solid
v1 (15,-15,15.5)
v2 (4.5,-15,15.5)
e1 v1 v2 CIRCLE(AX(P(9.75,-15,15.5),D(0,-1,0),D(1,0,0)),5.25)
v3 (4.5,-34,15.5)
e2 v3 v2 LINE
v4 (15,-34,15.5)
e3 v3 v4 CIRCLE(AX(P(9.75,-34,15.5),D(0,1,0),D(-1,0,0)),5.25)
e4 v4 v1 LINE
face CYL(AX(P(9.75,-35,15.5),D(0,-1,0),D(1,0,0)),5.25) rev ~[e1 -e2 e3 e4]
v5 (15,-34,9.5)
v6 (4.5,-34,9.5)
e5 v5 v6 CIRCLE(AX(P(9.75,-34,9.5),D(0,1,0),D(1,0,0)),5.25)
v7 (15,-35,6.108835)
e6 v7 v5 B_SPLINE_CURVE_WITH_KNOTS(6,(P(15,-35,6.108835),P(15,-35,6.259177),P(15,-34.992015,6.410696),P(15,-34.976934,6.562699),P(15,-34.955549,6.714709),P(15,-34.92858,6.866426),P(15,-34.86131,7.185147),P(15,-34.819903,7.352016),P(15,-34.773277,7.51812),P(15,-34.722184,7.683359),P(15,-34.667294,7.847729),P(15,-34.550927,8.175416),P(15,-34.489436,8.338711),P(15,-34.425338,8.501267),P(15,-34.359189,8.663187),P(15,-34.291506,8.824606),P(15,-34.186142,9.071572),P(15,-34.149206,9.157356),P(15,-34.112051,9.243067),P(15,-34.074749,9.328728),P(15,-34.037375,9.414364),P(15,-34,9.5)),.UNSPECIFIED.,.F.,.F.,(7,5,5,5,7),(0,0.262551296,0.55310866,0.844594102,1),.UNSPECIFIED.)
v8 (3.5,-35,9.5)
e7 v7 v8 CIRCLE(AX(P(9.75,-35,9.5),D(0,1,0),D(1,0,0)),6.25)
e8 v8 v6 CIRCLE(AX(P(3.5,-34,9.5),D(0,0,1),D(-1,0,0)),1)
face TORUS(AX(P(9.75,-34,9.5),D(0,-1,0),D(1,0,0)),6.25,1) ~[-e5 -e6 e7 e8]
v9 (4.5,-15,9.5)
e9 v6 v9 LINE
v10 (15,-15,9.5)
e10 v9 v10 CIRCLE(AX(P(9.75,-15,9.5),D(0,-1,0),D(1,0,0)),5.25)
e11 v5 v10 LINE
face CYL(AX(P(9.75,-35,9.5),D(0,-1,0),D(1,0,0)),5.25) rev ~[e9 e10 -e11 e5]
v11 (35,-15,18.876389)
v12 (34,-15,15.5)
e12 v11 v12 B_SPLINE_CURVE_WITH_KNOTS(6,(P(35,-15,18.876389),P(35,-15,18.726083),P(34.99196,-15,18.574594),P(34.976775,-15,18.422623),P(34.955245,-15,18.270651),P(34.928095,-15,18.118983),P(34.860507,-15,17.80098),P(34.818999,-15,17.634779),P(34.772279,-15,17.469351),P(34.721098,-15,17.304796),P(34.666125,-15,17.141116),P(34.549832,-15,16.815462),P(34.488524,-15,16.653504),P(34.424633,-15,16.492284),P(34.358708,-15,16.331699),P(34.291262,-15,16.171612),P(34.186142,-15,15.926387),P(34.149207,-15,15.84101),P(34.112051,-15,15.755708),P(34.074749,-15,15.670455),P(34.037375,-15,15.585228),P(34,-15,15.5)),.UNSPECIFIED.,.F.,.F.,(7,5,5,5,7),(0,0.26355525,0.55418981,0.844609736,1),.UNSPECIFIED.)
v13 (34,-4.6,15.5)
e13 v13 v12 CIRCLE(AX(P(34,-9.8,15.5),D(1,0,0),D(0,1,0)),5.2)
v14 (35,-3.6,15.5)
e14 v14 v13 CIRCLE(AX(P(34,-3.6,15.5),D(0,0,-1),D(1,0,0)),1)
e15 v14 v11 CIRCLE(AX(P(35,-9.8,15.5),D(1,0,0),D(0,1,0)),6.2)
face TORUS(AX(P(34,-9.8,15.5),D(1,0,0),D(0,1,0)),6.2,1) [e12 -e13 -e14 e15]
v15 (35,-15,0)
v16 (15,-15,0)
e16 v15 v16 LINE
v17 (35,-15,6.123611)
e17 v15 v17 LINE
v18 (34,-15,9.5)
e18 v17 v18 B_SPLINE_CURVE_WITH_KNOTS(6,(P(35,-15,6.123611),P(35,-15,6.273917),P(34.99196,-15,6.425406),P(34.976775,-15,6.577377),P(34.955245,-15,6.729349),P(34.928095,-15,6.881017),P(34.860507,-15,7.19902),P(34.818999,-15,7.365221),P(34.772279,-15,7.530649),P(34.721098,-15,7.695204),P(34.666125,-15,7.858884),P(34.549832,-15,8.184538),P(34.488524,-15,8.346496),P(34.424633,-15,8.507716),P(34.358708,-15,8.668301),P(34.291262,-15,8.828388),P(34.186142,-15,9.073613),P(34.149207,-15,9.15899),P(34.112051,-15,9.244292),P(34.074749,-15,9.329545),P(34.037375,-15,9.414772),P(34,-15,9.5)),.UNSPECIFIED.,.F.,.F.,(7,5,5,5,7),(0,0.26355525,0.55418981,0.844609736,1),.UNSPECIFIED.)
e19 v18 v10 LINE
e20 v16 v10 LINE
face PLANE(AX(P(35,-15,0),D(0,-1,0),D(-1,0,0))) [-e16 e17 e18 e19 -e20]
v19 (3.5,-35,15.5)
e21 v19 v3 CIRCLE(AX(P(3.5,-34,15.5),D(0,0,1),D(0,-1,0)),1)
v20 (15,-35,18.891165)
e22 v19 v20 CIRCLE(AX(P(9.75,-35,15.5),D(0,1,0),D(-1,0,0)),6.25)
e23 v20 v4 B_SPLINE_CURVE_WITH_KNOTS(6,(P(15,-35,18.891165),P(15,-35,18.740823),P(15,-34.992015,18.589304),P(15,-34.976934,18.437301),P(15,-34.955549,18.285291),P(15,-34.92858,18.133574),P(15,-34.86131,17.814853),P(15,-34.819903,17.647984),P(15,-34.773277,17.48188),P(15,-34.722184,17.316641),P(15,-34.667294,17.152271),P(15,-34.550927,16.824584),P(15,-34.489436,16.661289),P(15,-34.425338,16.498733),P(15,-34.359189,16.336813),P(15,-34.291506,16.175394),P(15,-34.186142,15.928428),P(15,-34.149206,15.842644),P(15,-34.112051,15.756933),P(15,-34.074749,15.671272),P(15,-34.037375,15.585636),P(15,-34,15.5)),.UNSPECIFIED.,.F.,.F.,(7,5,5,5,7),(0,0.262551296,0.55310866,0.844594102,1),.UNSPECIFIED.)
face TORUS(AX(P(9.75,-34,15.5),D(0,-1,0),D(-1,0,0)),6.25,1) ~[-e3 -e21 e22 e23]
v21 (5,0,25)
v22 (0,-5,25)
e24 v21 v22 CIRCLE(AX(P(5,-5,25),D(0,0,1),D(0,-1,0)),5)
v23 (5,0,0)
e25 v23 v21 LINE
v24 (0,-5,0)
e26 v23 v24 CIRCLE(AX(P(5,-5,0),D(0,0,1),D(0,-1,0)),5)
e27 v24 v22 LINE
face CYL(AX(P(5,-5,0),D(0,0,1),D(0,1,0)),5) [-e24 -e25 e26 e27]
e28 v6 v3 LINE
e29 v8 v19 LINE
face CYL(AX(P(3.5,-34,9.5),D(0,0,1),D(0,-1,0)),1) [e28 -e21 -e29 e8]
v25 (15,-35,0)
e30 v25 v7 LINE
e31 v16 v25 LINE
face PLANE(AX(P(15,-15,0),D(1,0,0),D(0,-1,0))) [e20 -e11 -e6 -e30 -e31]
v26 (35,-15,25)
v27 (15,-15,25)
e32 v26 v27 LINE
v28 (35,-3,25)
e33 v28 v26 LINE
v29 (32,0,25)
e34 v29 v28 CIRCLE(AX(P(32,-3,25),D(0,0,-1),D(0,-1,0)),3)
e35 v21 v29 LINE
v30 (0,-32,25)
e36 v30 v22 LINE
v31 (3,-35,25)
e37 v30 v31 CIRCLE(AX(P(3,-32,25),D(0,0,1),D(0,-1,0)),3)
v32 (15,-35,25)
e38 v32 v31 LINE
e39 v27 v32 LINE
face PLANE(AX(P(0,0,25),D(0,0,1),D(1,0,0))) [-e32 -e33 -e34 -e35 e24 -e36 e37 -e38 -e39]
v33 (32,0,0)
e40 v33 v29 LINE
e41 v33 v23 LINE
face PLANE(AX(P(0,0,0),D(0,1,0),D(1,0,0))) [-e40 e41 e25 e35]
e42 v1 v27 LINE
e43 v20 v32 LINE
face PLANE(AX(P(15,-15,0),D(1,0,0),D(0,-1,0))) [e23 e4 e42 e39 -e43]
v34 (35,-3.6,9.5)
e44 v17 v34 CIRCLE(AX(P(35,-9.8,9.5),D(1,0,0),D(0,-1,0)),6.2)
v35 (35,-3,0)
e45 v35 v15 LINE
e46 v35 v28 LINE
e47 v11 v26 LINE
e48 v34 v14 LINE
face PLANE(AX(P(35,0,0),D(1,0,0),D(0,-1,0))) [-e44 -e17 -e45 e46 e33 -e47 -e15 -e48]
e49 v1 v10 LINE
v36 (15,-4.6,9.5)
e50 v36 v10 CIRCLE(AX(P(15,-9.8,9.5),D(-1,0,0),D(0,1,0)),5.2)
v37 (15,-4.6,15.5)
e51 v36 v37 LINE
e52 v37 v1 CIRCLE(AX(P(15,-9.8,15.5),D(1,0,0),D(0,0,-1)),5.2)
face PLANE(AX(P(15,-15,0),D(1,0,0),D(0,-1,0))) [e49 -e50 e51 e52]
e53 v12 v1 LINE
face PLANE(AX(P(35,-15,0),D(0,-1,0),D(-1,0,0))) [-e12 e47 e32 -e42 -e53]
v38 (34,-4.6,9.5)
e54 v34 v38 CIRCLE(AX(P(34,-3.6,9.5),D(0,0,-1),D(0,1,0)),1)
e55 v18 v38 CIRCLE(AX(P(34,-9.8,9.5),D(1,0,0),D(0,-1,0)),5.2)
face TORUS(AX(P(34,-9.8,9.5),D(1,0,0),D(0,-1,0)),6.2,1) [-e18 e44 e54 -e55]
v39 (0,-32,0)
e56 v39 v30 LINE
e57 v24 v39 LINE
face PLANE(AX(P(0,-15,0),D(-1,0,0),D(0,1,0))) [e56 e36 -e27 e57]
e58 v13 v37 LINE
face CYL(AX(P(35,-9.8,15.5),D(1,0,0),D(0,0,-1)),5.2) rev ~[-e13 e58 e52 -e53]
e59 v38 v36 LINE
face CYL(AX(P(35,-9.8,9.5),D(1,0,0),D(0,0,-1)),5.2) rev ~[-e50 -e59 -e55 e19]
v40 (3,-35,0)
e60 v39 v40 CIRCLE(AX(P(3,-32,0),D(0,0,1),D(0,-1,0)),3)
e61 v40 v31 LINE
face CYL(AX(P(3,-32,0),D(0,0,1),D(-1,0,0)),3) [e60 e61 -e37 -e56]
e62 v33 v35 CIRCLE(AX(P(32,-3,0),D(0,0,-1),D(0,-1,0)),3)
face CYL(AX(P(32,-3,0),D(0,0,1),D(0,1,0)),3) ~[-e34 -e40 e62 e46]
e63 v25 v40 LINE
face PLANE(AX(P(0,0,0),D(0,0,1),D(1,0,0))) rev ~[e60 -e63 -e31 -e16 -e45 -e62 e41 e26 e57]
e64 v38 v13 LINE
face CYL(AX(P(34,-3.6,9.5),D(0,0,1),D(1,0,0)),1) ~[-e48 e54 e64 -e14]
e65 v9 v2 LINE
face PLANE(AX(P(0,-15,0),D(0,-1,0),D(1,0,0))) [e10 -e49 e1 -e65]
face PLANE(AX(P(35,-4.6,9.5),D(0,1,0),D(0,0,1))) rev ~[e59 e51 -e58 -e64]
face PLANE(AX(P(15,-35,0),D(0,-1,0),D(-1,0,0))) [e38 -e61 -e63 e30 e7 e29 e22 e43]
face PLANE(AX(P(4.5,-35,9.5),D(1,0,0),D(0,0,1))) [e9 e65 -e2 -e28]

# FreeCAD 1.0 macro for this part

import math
import FreeCAD as App
import Part
import Sketcher
Q = App.Units.Quantity


def edges_at(feature, points):
    """Names of the edges that pass closest to the given points."""
    edges = feature.Shape.Edges
    near = lambda p: min(range(len(edges)), key=lambda i: edges[i].distToShape(Part.Vertex(*p))[0])
    return sorted({f"Edge{near(p) + 1}" for p in points})

doc = App.newDocument("Part")
body = doc.addObject("PartDesign::Body", "Body")

sketch1 = body.newObject("Sketcher::SketchObject", "Sketch")
sketch1.AttachmentSupport = (doc.getObject("XY_Plane"), [""])
sketch1.MapMode = "FlatFace"
sketch1.addGeometry([
    Part.LineSegment(App.Vector(0, 0, 0), App.Vector(0, -35, 0)),
    Part.LineSegment(App.Vector(0, -35, 0), App.Vector(15, -35, 0)),
    Part.LineSegment(App.Vector(15, -35, 0), App.Vector(15, -15, 0)),
    Part.LineSegment(App.Vector(15, -15, 0), App.Vector(35, -15, 0)),
    Part.LineSegment(App.Vector(35, -15, 0), App.Vector(35, 0, 0)),
    Part.LineSegment(App.Vector(35, 0, 0), App.Vector(0, 0, 0)),
], False)
sketch1.addConstraint([
    Sketcher.Constraint("Coincident", 0, 2, 1, 1),
    Sketcher.Constraint("Coincident", 1, 2, 2, 1),
    Sketcher.Constraint("Coincident", 2, 2, 3, 1),
    Sketcher.Constraint("Coincident", 3, 2, 4, 1),
    Sketcher.Constraint("Coincident", 4, 2, 5, 1),
    Sketcher.Constraint("Coincident", 5, 2, 0, 1),
    Sketcher.Constraint("Vertical", 0),
    Sketcher.Constraint("Horizontal", 1),
    Sketcher.Constraint("Vertical", 2),
    Sketcher.Constraint("Horizontal", 3),
    Sketcher.Constraint("Vertical", 4),
    Sketcher.Constraint("Horizontal", 5),
    Sketcher.Constraint("Coincident", 5, 2, -1, 1),
    Sketcher.Constraint("Equal", 5, 0),
    Sketcher.Constraint("Equal", 3, 2),
    Sketcher.Constraint("DistanceX", 1, 1, 1, 2, Q("15 mm")),
    Sketcher.Constraint("DistanceX", 5, 2, 5, 1, Q("35 mm")),
])
pad1 = body.newObject("PartDesign::Pad", "Pad")
pad1.Profile = sketch1
pad1.Length = 25

sketch2 = body.newObject("Sketcher::SketchObject", "Sketch001")
sketch2.AttachmentSupport = (doc.getObject("YZ_Plane"), [""])
sketch2.MapMode = "FlatFace"
sketch2.AttachmentOffset = App.Placement(App.Vector(0, 0, 35), App.Rotation())
sketch2.addGeometry([
    Part.ArcOfCircle(Part.Circle(App.Vector(-10, 16, 0), App.Vector(0, 0, 1), 5), math.radians(0), math.radians(180)),
    Part.LineSegment(App.Vector(-15, 16, 0), App.Vector(-15, 10, 0)),
    Part.ArcOfCircle(Part.Circle(App.Vector(-10, 10, 0), App.Vector(0, 0, 1), 5), math.radians(180), math.radians(360)),
    Part.LineSegment(App.Vector(-5, 10, 0), App.Vector(-5, 16, 0)),
], False)
sketch2.addConstraint([
    Sketcher.Constraint("Tangent", 0, 2, 1, 1),
    Sketcher.Constraint("Tangent", 1, 2, 2, 1),
    Sketcher.Constraint("Tangent", 2, 2, 3, 1),
    Sketcher.Constraint("Tangent", 3, 2, 0, 1),
    Sketcher.Constraint("Vertical", 1),
    Sketcher.Constraint("Vertical", 3),
    Sketcher.Constraint("Radius", 0, Q("5.2 mm")),
    Sketcher.Constraint("DistanceY", 1, 2, 1, 1, Q("6 mm")),
    Sketcher.Constraint("DistanceX", 0, 2, -1, 1, Q("15 mm")),
    Sketcher.Constraint("DistanceY", -1, 1, 0, 3, Q("15.5 mm")),
])
pocket1 = body.newObject("PartDesign::Pocket", "Pocket")
pocket1.Profile = sketch2
pocket1.Length = 20

sketch3 = body.newObject("Sketcher::SketchObject", "Sketch002")
sketch3.AttachmentSupport = (doc.getObject("XZ_Plane"), [""])
sketch3.MapMode = "FlatFace"
sketch3.AttachmentOffset = App.Placement(App.Vector(0, 0, 35), App.Rotation())
sketch3.addGeometry([
    Part.ArcOfCircle(Part.Circle(App.Vector(10, 16, 0), App.Vector(0, 0, 1), 5), math.radians(0), math.radians(180)),
    Part.LineSegment(App.Vector(4, 16, 0), App.Vector(4, 10, 0)),
    Part.ArcOfCircle(Part.Circle(App.Vector(10, 10, 0), App.Vector(0, 0, 1), 5), math.radians(180), math.radians(360)),
    Part.LineSegment(App.Vector(15, 10, 0), App.Vector(15, 16, 0)),
], False)
sketch3.addConstraint([
    Sketcher.Constraint("Tangent", 0, 2, 1, 1),
    Sketcher.Constraint("Tangent", 1, 2, 2, 1),
    Sketcher.Constraint("Tangent", 2, 2, 3, 1),
    Sketcher.Constraint("Tangent", 3, 2, 0, 1),
    Sketcher.Constraint("Vertical", 1),
    Sketcher.Constraint("Vertical", 3),
    Sketcher.Constraint("Radius", 0, Q("5.25 mm")),
    Sketcher.Constraint("DistanceY", 1, 2, 1, 1, Q("6 mm")),
    Sketcher.Constraint("DistanceX", -1, 1, 2, 2, Q("15 mm")),
    Sketcher.Constraint("DistanceY", -1, 1, 0, 3, Q("15.5 mm")),
])
pocket2 = body.newObject("PartDesign::Pocket", "Pocket001")
pocket2.Profile = sketch3
pocket2.Length = 20
doc.recompute()

fillet = body.newObject("PartDesign::Fillet", "Fillet")
fillet.Base = (pocket2, edges_at(pocket2, [
    (4.5, -35, 12.5),
    (9.75, -35, 4.25),
    (9.75, -35, 20.75),
    (35, -4.6, 12.5),
    (35, -9.8, 4.3),
    (35, -9.8, 20.7),
]))
fillet.Radius = 1
doc.recompute()

fillet2 = body.newObject("PartDesign::Fillet", "Fillet001")
fillet2.Base = (fillet, edges_at(fillet, [(0, 0, 12.5)]))
fillet2.Radius = 5
doc.recompute()

fillet3 = body.newObject("PartDesign::Fillet", "Fillet002")
fillet3.Base = (fillet2, edges_at(fillet2, [(0, -35, 12.5), (35, 0, 12.5)]))
fillet3.Radius = 3

doc.recompute()
